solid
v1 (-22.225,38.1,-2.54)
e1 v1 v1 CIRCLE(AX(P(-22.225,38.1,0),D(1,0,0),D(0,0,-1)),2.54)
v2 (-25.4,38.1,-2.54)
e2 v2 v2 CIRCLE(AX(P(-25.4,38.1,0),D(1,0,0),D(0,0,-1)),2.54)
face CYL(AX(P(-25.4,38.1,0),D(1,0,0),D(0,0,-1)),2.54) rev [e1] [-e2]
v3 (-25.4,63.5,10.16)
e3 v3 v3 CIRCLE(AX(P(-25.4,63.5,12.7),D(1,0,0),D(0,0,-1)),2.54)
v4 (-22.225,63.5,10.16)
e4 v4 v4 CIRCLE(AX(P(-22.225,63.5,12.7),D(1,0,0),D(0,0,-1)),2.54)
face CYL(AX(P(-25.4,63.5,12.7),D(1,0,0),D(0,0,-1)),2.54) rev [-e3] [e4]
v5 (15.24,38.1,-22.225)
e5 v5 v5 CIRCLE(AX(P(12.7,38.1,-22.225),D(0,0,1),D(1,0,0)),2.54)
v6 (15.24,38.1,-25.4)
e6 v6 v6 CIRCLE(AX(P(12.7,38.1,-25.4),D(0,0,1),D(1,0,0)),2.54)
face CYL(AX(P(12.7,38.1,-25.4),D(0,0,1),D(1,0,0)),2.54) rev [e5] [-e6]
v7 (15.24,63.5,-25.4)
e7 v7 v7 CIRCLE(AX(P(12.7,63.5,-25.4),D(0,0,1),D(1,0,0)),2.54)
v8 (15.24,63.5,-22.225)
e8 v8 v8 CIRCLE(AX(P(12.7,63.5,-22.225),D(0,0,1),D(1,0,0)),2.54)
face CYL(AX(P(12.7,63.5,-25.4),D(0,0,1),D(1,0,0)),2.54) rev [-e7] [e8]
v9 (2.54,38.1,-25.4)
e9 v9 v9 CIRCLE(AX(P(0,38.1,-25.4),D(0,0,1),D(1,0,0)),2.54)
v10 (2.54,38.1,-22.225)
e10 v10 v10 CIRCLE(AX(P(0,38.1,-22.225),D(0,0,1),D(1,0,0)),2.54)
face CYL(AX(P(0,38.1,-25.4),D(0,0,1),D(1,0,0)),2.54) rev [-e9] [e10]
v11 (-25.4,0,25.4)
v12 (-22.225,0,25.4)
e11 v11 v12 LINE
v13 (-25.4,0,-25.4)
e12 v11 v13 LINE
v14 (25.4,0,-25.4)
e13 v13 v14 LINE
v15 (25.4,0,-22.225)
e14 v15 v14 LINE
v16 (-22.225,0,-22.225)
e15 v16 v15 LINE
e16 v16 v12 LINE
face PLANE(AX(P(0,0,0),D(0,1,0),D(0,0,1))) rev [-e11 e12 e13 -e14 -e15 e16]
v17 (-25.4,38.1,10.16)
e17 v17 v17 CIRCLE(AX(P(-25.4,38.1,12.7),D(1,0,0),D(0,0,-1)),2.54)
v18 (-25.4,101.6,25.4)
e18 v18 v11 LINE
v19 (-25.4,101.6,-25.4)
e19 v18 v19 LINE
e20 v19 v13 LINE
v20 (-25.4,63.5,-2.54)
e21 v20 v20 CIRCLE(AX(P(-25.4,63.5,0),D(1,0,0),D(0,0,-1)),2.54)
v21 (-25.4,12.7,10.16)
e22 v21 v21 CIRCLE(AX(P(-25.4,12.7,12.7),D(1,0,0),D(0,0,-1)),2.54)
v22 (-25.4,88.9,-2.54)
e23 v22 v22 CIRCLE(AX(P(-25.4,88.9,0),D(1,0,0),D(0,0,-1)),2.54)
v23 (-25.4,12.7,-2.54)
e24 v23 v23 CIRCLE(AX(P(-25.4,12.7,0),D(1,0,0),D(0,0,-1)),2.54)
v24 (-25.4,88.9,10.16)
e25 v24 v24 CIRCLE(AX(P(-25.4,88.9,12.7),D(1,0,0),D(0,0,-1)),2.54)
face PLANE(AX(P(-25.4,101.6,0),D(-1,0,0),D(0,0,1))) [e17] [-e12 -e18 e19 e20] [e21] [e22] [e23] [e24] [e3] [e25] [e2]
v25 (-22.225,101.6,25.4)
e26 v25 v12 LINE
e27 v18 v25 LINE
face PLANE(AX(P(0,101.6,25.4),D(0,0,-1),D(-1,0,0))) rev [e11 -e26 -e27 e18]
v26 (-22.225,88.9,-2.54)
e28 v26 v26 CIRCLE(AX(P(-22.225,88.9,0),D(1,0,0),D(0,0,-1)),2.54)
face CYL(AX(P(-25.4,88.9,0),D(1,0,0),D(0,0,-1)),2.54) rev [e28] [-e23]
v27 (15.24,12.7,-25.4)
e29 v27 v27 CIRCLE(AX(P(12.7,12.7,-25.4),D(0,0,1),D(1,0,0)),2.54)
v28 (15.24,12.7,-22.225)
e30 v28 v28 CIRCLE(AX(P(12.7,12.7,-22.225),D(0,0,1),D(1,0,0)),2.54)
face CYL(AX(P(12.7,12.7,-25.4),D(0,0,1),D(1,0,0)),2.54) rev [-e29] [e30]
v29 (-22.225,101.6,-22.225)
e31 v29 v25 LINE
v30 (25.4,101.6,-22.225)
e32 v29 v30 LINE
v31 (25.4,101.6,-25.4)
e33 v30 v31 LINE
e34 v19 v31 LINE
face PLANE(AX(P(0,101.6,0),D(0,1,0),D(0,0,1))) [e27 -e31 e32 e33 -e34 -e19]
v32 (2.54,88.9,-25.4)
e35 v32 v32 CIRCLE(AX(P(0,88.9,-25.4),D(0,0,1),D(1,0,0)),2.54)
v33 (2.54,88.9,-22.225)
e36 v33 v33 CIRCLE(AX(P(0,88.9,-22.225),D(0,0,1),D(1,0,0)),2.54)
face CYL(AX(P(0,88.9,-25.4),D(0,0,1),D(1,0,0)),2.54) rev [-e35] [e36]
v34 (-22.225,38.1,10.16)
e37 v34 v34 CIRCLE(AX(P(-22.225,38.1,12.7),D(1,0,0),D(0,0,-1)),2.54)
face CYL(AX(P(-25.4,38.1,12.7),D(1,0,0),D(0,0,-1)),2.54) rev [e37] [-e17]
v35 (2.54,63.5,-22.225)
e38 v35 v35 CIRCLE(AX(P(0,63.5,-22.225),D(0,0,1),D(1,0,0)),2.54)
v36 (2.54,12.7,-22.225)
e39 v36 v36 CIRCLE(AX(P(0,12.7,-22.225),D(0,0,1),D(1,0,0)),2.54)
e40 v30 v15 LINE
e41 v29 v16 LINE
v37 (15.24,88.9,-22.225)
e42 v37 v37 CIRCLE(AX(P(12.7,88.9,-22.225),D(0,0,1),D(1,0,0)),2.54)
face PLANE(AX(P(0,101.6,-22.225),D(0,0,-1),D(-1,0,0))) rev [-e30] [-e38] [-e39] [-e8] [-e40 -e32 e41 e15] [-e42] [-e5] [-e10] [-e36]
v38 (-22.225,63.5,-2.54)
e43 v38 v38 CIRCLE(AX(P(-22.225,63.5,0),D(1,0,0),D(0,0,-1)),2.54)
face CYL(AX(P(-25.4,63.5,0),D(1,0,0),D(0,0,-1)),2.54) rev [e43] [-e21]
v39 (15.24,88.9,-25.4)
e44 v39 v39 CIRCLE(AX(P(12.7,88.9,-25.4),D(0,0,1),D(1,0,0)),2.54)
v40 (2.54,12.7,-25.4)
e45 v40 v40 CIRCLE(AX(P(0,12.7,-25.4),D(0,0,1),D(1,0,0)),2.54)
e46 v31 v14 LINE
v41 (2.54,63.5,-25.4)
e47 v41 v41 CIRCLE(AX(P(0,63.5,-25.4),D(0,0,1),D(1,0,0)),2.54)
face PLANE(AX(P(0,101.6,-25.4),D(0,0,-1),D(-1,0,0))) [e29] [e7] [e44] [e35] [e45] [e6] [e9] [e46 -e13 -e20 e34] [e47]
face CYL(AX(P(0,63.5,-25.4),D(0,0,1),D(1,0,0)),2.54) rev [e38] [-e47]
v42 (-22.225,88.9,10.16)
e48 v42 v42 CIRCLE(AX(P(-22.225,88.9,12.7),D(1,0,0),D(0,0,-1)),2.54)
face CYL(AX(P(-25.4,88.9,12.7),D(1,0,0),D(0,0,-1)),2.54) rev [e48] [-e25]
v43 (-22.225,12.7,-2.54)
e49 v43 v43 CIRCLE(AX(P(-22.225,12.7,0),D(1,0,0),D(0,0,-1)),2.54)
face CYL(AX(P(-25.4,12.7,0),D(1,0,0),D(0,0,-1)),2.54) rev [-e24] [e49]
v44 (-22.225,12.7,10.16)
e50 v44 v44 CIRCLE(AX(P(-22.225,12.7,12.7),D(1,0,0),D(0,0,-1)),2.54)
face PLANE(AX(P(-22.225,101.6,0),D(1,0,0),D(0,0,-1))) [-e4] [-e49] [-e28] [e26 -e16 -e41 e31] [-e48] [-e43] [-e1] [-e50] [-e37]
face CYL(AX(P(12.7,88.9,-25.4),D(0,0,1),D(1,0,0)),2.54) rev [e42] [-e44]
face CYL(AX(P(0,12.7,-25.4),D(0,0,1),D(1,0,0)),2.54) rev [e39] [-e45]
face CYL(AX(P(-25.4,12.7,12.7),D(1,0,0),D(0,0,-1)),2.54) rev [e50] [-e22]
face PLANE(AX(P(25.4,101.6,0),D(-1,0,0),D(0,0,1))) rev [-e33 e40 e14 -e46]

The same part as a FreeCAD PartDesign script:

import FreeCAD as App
import Part
import Sketcher
from FreeCAD import Vector
Q = App.Units.Quantity

doc = App.newDocument("Part")
body = doc.addObject("PartDesign::Body", "Body")

# Sketch on XZ plane
sketch1 = doc.addObject("Sketcher::SketchObject", "Sketch")
body.addObject(sketch1)
sketch1.AttachmentSupport = (doc.XZ_Plane, [""])
sketch1.MapMode = "FlatFace"
sketch1.addGeometry([
    Part.LineSegment(Vector(-25.4, -25.4, 0), Vector(-25.4, 25.4, 0)),  # 0
    Part.LineSegment(Vector(-25.4, 25.4, 0), Vector(-22.225, 25.4, 0)),  # 1
    Part.LineSegment(Vector(-22.225, 25.4, 0), Vector(-22.225, -22.225, 0)),  # 2
    Part.LineSegment(Vector(-22.225, -22.225, 0), Vector(25.4, -22.225, 0)),  # 3
    Part.LineSegment(Vector(25.4, -22.225, 0), Vector(25.4, -25.4, 0)),  # 4
    Part.LineSegment(Vector(25.4, -25.4, 0), Vector(-25.4, -25.4, 0)),  # 5
], False)
sketch1.addConstraint([
    Sketcher.Constraint("Coincident", 0, 2, 1, 1),
    Sketcher.Constraint("Coincident", 1, 2, 2, 1),
    Sketcher.Constraint("Coincident", 2, 2, 3, 1),
    Sketcher.Constraint("Coincident", 3, 2, 4, 1),
    Sketcher.Constraint("Coincident", 4, 2, 5, 1),
    Sketcher.Constraint("Coincident", 5, 2, 0, 1),
    Sketcher.Constraint("Vertical", 0),
    Sketcher.Constraint("Horizontal", 1),
    Sketcher.Constraint("Vertical", 2),
    Sketcher.Constraint("Horizontal", 3),
    Sketcher.Constraint("Vertical", 4),
    Sketcher.Constraint("Horizontal", 5),
    Sketcher.Constraint("Symmetric", 0, 2, 4, 2, -1, 1),
    Sketcher.Constraint("Equal", 5, 0),
    Sketcher.Constraint("Equal", 3, 2),
    Sketcher.Constraint("DistanceX", 5, 2, 5, 1, Q("2 in")),
    Sketcher.Constraint("DistanceX", 1, 1, 1, 2, Q("0.125 in")),
])
pad1 = doc.addObject("PartDesign::Pad", "Pad")
body.addObject(pad1)
pad1.Profile = sketch1
pad1.Length = Q("4 in")
pad1.Reversed = True

# Sketch on XY plane
sketch2 = doc.addObject("Sketcher::SketchObject", "Sketch001")
body.addObject(sketch2)
sketch2.AttachmentSupport = (doc.XY_Plane, [""])
sketch2.MapMode = "FlatFace"
sketch2.AttachmentOffset = App.Placement(Vector(0, 0, -0.875 * 25.4), App.Rotation())
sketch2.addGeometry([
    Part.Circle(Vector(12.7, 88.9, 0), Vector(0, 0, 1), 2.54),  # 0
    Part.Circle(Vector(0, 88.9, 0), Vector(0, 0, 1), 2.54),  # 1
    Part.Circle(Vector(0, 63.5, 0), Vector(0, 0, 1), 2.54),  # 2
    Part.Circle(Vector(12.7, 63.5, 0), Vector(0, 0, 1), 2.54),  # 3
    Part.Circle(Vector(0, 38.1, 0), Vector(0, 0, 1), 2.54),  # 4
    Part.Circle(Vector(12.7, 38.1, 0), Vector(0, 0, 1), 2.54),  # 5
    Part.Circle(Vector(0, 12.7, 0), Vector(0, 0, 1), 2.54),  # 6
    Part.Circle(Vector(12.7, 12.7, 0), Vector(0, 0, 1), 2.54),  # 7
], False)
sketch2.addConstraint([
    Sketcher.Constraint("Equal", 0, 1),
    Sketcher.Constraint("Equal", 1, 2),
    Sketcher.Constraint("Equal", 2, 3),
    Sketcher.Constraint("Equal", 3, 4),
    Sketcher.Constraint("Equal", 4, 5),
    Sketcher.Constraint("Equal", 5, 6),
    Sketcher.Constraint("Equal", 6, 7),
    Sketcher.Constraint("PointOnObject", 1, 3, -2),
    Sketcher.Constraint("PointOnObject", 2, 3, -2),
    Sketcher.Constraint("PointOnObject", 4, 3, -2),
    Sketcher.Constraint("PointOnObject", 6, 3, -2),
    Sketcher.Constraint("Horizontal", 0, 3, 1, 3),
    Sketcher.Constraint("Horizontal", 2, 3, 3, 3),
    Sketcher.Constraint("Horizontal", 4, 3, 5, 3),
    Sketcher.Constraint("Horizontal", 6, 3, 7, 3),
    Sketcher.Constraint("Vertical", 0, 3, 3, 3),
    Sketcher.Constraint("Vertical", 3, 3, 5, 3),
    Sketcher.Constraint("Vertical", 5, 3, 7, 3),
    Sketcher.Constraint("Diameter", 0, Q("0.2 in")),
    Sketcher.Constraint("DistanceY", 2, 3, 1, 3, Q("1 in")),
    Sketcher.Constraint("DistanceY", 4, 3, 2, 3, Q("1 in")),
    Sketcher.Constraint("DistanceY", 6, 3, 4, 3, Q("1 in")),
    Sketcher.Constraint("DistanceX", -1, 1, 0, 3, Q("0.5 in")),
    Sketcher.Constraint("DistanceY", -1, 1, 0, 3, Q("3.5 in")),
])
pocket1 = doc.addObject("PartDesign::Pocket", "Pocket")
body.addObject(pocket1)
pocket1.Profile = sketch2
pocket1.Type = "ThroughAll"

# Sketch on YZ plane
sketch3 = doc.addObject("Sketcher::SketchObject", "Sketch002")
body.addObject(sketch3)
sketch3.AttachmentSupport = (doc.YZ_Plane, [""])
sketch3.MapMode = "FlatFace"
sketch3.AttachmentOffset = App.Placement(Vector(0, 0, -0.875 * 25.4), App.Rotation())
sketch3.addGeometry([
    Part.Circle(Vector(88.9, 12.7, 0), Vector(0, 0, 1), 2.54),  # 0
    Part.Circle(Vector(88.9, 0, 0), Vector(0, 0, 1), 2.54),  # 1
    Part.Circle(Vector(63.5, 12.7, 0), Vector(0, 0, 1), 2.54),  # 2
    Part.Circle(Vector(63.5, 0, 0), Vector(0, 0, 1), 2.54),  # 3
    Part.Circle(Vector(38.1, 12.7, 0), Vector(0, 0, 1), 2.54),  # 4
    Part.Circle(Vector(38.1, 0, 0), Vector(0, 0, 1), 2.54),  # 5
    Part.Circle(Vector(12.7, 12.7, 0), Vector(0, 0, 1), 2.54),  # 6
    Part.Circle(Vector(12.7, 0, 0), Vector(0, 0, 1), 2.54),  # 7
], False)
sketch3.addConstraint([
    Sketcher.Constraint("Equal", 0, 1),
    Sketcher.Constraint("Equal", 1, 2),
    Sketcher.Constraint("Equal", 2, 3),
    Sketcher.Constraint("Equal", 3, 4),
    Sketcher.Constraint("Equal", 4, 5),
    Sketcher.Constraint("Equal", 5, 6),
    Sketcher.Constraint("Equal", 6, 7),
    Sketcher.Constraint("PointOnObject", 1, 3, -1),
    Sketcher.Constraint("PointOnObject", 3, 3, -1),
    Sketcher.Constraint("PointOnObject", 5, 3, -1),
    Sketcher.Constraint("PointOnObject", 7, 3, -1),
    Sketcher.Constraint("Horizontal", 0, 3, 2, 3),
    Sketcher.Constraint("Horizontal", 2, 3, 4, 3),
    Sketcher.Constraint("Horizontal", 4, 3, 6, 3),
    Sketcher.Constraint("Vertical", 0, 3, 1, 3),
    Sketcher.Constraint("Vertical", 2, 3, 3, 3),
    Sketcher.Constraint("Vertical", 4, 3, 5, 3),
    Sketcher.Constraint("Vertical", 6, 3, 7, 3),
    Sketcher.Constraint("Diameter", 0, Q("0.2 in")),
    Sketcher.Constraint("DistanceX", 2, 3, 0, 3, Q("1 in")),
    Sketcher.Constraint("DistanceX", 4, 3, 2, 3, Q("1 in")),
    Sketcher.Constraint("DistanceX", 6, 3, 4, 3, Q("1 in")),
    Sketcher.Constraint("DistanceX", -1, 1, 0, 3, Q("3.5 in")),
    Sketcher.Constraint("DistanceY", -1, 1, 0, 3, Q("0.5 in")),
])
pocket2 = doc.addObject("PartDesign::Pocket", "Pocket001")
body.addObject(pocket2)
pocket2.Profile = sketch3
pocket2.Type = "ThroughAll"

doc.recompute()
